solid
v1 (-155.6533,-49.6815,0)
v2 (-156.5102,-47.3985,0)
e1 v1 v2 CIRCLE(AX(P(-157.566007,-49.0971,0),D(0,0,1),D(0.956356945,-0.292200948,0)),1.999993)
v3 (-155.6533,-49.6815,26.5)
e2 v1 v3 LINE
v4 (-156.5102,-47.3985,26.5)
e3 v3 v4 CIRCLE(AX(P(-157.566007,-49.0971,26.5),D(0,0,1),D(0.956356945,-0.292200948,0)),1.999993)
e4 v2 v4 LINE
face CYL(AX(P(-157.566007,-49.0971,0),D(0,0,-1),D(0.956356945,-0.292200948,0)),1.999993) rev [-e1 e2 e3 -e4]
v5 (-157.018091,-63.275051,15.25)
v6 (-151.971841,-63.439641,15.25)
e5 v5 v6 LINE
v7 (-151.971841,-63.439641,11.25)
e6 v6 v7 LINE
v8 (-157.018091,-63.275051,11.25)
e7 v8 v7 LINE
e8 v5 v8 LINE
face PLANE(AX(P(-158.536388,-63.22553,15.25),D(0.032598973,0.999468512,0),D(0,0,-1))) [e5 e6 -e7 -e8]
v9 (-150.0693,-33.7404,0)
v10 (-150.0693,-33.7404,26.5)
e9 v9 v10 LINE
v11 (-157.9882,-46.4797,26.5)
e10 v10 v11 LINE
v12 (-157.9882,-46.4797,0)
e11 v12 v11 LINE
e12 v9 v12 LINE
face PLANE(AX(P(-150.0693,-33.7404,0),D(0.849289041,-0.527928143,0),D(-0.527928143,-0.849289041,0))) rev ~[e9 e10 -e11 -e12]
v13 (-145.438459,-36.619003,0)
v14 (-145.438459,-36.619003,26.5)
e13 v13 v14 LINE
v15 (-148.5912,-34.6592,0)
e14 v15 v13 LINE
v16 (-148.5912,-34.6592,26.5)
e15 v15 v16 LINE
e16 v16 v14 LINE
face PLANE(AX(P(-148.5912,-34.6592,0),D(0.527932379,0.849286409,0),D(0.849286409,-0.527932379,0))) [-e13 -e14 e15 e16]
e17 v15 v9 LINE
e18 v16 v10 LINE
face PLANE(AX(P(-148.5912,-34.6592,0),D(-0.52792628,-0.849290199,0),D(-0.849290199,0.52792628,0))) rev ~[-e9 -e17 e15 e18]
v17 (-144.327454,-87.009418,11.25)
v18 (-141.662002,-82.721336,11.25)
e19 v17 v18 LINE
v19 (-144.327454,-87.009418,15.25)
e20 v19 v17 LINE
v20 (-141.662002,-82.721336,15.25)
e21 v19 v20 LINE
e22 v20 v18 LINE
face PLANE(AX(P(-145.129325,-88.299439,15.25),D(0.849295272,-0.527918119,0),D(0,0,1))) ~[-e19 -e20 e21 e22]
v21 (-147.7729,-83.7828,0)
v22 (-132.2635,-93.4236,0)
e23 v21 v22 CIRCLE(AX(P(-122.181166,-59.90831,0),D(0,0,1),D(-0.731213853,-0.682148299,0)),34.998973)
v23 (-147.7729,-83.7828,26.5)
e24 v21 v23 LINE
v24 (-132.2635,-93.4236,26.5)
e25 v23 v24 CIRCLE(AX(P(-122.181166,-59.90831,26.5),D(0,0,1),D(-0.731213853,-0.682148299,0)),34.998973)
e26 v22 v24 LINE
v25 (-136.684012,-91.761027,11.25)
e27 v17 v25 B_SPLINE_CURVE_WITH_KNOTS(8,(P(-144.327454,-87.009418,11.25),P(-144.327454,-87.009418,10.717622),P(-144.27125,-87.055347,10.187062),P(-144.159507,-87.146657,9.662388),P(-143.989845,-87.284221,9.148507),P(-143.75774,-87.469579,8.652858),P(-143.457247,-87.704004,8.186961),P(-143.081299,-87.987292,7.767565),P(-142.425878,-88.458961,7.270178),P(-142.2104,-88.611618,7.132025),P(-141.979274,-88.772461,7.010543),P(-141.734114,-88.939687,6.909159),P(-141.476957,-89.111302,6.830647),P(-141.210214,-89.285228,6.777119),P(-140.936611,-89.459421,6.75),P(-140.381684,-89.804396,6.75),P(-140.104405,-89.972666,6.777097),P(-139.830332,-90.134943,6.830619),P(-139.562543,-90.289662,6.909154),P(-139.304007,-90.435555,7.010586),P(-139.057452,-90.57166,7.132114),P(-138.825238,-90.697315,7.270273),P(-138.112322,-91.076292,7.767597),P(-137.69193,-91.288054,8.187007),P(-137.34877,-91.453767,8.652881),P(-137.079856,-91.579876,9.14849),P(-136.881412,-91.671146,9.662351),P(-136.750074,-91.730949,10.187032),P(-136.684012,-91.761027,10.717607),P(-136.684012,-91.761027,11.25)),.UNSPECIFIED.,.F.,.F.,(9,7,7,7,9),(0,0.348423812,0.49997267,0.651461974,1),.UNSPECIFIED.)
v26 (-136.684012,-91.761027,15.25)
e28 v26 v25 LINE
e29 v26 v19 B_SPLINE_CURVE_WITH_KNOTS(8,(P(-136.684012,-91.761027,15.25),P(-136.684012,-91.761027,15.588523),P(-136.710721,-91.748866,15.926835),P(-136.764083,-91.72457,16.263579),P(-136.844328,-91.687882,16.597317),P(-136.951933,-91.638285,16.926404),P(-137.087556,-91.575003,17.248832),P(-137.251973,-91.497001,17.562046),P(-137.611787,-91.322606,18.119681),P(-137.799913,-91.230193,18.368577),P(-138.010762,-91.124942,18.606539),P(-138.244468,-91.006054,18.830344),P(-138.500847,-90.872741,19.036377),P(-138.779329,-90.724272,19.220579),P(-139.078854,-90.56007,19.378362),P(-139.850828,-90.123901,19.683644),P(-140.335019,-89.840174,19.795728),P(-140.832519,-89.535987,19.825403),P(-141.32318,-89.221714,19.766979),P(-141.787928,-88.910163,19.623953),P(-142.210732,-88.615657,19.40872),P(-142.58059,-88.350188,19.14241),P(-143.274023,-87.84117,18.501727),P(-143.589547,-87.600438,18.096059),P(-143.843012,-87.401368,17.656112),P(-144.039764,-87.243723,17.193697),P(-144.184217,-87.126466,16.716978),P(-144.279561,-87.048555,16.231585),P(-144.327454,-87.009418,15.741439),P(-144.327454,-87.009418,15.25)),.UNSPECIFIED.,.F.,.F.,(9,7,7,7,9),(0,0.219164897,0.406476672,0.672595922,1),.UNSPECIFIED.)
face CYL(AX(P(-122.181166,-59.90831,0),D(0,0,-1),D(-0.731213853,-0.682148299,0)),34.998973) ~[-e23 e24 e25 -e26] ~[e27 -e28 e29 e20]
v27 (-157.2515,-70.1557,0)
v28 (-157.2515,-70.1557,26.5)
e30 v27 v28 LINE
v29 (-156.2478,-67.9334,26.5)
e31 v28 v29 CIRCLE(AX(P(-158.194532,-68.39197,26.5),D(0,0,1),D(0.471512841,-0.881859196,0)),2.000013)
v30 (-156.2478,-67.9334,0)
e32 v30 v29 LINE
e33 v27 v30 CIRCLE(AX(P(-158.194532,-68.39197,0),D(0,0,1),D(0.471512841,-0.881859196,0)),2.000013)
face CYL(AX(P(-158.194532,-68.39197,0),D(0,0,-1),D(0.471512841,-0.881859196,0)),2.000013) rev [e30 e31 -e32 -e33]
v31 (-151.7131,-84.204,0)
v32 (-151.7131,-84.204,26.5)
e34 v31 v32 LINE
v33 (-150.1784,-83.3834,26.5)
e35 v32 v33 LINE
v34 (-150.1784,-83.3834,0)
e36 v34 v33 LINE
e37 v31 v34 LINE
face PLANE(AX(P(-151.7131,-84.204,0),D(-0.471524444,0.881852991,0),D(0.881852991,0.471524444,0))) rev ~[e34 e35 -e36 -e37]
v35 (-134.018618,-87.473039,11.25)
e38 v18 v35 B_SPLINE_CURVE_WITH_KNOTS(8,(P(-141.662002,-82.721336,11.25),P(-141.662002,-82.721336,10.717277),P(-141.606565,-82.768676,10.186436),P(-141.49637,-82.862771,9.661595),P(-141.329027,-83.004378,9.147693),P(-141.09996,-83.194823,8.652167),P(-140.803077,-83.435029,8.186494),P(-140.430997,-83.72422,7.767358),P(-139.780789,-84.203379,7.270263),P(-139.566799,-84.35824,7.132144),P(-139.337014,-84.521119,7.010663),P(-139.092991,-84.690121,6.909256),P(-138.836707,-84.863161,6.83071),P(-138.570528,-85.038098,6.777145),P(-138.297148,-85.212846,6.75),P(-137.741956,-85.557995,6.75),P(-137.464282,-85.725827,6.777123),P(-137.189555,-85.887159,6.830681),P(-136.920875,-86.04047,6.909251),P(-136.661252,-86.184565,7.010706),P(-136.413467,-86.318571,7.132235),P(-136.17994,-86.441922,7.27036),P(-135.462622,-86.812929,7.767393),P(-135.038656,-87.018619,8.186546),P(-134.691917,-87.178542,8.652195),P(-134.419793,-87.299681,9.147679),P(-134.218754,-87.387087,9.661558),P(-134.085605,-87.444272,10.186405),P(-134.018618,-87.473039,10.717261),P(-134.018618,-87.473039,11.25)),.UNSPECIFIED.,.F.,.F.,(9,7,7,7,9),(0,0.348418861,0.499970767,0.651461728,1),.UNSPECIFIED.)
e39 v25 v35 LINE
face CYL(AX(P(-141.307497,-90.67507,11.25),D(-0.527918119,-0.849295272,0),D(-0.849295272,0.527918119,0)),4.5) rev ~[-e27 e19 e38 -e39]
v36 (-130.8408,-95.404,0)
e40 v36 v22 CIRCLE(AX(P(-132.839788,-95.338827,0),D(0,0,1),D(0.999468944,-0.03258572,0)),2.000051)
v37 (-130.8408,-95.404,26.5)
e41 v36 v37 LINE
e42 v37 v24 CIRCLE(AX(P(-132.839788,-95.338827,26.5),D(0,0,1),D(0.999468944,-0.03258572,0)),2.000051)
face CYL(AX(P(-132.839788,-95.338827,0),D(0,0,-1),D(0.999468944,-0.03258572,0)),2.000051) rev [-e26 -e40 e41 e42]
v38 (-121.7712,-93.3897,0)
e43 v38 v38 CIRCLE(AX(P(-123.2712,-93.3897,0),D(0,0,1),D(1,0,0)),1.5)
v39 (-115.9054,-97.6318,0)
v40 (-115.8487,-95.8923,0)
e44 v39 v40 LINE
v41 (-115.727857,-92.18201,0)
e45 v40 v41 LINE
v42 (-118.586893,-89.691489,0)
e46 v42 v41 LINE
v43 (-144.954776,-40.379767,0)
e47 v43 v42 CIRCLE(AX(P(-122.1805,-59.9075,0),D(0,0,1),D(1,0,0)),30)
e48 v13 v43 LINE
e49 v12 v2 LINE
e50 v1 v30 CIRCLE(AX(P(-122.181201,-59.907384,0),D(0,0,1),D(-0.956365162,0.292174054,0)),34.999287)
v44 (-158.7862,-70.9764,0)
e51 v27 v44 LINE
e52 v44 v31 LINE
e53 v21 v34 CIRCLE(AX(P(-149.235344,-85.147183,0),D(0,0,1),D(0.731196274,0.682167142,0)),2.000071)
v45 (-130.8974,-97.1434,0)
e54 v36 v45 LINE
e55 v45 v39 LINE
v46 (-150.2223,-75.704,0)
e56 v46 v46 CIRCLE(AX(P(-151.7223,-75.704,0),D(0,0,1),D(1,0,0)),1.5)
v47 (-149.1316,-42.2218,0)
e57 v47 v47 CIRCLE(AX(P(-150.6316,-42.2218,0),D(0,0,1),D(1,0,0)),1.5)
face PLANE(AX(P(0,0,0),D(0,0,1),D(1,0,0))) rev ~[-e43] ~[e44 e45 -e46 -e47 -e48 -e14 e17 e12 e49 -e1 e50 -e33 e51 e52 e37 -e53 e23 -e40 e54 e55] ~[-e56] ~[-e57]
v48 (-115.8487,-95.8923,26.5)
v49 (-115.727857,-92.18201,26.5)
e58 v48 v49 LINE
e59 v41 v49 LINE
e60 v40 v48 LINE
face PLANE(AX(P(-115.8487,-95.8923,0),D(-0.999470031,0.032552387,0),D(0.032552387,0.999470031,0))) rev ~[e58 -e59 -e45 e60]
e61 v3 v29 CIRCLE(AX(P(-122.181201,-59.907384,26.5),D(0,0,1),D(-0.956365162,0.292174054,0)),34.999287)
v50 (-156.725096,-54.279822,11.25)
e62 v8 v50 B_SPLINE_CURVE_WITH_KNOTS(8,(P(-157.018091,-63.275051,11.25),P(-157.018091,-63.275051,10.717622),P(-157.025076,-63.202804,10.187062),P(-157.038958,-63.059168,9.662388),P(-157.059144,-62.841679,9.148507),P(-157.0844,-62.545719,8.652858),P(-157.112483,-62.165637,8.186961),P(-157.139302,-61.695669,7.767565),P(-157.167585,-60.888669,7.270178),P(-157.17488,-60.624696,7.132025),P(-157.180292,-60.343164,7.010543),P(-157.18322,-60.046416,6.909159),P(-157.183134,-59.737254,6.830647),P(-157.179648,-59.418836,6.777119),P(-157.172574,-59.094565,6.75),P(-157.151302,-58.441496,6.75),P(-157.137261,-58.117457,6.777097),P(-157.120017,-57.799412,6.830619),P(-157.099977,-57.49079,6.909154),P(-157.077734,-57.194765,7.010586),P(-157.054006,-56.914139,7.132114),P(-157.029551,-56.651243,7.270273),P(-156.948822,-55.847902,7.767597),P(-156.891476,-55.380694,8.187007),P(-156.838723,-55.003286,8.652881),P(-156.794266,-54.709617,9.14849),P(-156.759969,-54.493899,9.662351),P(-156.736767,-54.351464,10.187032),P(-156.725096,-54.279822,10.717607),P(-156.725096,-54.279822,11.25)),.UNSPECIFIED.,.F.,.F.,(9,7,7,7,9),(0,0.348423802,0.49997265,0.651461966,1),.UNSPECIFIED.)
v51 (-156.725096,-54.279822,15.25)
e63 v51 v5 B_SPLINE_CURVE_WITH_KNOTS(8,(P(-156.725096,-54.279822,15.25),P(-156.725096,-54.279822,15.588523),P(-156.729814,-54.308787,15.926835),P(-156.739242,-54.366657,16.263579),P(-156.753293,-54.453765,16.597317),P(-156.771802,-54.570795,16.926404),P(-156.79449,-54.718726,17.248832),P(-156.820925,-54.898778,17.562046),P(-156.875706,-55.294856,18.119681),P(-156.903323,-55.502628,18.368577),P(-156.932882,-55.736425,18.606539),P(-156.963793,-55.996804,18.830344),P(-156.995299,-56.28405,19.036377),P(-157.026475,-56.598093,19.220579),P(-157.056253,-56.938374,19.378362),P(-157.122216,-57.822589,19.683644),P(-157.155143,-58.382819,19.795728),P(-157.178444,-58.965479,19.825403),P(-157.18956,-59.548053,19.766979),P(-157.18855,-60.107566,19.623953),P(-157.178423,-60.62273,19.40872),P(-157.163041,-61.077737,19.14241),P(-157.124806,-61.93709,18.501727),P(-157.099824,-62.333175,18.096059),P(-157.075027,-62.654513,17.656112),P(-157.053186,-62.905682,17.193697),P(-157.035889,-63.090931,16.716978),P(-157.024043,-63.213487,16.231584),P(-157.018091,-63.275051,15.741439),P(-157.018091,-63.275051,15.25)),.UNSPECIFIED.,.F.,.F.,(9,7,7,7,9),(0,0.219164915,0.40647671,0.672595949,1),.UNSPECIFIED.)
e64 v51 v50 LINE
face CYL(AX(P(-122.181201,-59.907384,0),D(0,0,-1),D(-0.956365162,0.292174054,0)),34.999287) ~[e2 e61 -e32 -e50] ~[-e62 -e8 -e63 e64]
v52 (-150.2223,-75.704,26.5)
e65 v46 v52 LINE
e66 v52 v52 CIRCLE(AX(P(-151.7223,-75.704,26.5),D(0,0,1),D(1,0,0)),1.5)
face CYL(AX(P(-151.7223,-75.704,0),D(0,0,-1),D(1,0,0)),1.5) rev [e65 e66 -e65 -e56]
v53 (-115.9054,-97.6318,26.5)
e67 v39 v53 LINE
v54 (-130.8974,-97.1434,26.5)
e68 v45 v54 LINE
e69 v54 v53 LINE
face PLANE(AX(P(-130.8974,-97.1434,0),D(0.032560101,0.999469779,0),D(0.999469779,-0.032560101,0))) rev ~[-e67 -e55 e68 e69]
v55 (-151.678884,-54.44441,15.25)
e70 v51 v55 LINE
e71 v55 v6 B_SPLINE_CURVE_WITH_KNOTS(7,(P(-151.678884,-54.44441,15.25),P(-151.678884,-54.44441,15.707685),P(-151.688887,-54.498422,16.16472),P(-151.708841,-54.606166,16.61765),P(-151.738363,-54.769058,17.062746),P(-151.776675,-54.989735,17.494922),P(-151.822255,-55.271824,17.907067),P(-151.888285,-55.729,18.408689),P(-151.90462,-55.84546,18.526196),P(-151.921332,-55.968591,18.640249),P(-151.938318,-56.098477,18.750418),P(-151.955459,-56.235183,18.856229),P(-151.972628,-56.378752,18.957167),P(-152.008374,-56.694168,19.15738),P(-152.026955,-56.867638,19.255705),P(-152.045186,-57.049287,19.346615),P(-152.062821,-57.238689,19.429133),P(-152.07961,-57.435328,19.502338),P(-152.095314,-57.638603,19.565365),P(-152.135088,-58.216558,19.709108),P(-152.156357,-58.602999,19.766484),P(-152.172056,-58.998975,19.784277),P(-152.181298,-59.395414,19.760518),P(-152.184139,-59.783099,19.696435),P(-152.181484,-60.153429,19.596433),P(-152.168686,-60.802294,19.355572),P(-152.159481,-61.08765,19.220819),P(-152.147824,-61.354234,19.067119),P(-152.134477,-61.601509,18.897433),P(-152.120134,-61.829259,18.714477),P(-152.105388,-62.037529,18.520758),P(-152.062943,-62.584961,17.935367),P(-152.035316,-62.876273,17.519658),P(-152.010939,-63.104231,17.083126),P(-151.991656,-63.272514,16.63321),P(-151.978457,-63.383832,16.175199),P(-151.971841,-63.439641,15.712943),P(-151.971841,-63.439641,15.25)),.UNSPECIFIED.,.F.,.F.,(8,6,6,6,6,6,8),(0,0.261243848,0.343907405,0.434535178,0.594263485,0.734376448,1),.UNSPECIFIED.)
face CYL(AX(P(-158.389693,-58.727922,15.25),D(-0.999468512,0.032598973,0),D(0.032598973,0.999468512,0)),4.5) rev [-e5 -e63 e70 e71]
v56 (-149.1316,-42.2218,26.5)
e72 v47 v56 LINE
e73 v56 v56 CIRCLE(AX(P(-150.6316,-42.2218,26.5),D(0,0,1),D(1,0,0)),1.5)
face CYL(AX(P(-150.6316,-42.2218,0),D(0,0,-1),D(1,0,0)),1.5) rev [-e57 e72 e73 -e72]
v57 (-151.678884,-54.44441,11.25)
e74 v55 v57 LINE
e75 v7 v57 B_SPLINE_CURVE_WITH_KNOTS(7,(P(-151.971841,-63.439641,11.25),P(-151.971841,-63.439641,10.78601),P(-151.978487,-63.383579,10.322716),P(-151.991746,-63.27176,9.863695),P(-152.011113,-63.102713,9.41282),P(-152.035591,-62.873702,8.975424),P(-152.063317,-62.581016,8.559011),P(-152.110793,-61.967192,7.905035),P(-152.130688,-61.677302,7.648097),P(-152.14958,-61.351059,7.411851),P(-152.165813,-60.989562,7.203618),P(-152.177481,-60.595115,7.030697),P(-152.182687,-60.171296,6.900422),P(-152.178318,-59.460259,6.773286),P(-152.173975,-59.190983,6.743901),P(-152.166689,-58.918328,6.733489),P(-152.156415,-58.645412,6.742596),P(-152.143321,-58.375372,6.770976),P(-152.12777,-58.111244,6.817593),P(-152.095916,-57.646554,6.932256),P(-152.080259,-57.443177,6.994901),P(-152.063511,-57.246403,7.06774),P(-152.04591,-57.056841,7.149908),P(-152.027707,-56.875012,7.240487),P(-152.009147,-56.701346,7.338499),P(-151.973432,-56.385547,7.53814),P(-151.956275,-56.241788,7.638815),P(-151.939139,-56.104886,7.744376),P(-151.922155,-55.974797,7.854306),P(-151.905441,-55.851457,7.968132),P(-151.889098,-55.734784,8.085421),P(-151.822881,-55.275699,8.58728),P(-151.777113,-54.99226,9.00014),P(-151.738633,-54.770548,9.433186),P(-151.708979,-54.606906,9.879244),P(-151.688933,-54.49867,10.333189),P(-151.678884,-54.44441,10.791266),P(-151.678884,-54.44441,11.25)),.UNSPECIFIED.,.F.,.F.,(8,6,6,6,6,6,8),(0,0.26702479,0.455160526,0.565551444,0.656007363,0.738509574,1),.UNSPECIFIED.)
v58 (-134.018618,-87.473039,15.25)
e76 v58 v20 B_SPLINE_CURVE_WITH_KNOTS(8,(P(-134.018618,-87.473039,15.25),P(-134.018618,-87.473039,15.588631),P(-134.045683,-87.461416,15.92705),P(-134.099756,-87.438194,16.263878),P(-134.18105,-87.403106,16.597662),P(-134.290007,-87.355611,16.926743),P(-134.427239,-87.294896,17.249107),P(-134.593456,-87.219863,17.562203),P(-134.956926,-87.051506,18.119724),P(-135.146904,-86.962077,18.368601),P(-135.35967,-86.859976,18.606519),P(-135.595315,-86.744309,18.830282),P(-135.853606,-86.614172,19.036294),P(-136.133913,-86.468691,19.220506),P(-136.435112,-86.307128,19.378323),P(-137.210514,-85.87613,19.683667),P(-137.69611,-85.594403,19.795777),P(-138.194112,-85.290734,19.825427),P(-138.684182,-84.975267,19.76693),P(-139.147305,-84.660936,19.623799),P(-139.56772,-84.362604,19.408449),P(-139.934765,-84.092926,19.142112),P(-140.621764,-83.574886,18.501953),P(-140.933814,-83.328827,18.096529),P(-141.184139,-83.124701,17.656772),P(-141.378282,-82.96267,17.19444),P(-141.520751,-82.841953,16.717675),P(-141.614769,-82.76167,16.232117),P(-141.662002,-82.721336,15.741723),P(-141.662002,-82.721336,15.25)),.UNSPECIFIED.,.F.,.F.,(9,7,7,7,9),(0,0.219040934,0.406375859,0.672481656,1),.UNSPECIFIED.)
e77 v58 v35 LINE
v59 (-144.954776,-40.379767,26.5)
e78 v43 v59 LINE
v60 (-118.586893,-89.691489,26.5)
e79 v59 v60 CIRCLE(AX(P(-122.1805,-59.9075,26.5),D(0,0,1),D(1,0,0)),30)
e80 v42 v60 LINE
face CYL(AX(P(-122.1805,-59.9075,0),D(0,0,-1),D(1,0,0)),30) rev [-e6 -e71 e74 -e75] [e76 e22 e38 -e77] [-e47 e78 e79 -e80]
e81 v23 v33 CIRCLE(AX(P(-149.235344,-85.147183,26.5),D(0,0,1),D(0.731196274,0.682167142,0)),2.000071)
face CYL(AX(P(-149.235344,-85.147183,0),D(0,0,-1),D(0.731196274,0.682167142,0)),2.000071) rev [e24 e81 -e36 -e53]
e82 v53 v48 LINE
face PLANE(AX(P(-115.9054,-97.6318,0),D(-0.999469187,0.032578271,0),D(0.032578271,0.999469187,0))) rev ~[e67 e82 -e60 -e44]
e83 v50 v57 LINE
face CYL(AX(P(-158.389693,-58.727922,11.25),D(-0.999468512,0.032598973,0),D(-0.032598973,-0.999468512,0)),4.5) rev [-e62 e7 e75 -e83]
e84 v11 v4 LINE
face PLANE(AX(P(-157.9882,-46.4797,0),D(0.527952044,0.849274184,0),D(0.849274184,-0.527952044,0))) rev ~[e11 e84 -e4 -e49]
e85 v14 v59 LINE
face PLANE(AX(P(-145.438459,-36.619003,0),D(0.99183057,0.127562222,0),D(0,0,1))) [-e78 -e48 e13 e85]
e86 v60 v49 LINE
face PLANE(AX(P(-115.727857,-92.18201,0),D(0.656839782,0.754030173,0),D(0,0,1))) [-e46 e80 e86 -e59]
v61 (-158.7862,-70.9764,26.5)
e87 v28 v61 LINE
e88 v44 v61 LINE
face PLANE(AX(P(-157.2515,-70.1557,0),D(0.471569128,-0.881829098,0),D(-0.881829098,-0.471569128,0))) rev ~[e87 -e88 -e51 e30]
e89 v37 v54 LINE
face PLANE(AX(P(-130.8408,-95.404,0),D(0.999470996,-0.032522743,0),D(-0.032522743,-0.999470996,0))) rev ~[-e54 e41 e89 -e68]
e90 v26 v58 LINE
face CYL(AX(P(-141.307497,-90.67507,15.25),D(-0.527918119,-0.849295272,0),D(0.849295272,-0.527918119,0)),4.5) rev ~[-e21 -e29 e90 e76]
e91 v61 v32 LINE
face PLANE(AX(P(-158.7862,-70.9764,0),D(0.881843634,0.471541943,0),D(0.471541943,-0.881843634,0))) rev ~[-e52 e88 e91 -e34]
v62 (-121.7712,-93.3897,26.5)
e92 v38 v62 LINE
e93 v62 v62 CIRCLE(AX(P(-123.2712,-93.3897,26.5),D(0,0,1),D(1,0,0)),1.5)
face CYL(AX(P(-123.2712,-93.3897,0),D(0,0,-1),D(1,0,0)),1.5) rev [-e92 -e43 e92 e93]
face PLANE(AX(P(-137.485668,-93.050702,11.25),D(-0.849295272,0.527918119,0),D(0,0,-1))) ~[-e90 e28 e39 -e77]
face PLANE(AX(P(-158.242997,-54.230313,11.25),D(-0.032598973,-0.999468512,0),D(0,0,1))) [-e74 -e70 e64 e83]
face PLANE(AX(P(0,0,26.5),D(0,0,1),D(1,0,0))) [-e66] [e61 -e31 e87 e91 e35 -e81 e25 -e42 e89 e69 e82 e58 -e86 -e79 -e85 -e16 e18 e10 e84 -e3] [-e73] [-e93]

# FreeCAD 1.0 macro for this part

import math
import FreeCAD as App
import Part
import Sketcher
from FreeCAD import Vector
Q = App.Units.Quantity


def edges_at(feature, points):
    """Names of the edges that pass closest to the given points."""
    edges = feature.Shape.Edges
    near = lambda p: min(range(len(edges)), key=lambda i: edges[i].distToShape(Part.Vertex(*p))[0])
    return sorted({f"Edge{near(p) + 1}" for p in points})

doc = App.newDocument("Part")
params = doc.addObject("Spreadsheet::Sheet", "Params")
for row, (alias, value) in enumerate([
    ("sketch1_radius", "30 mm"),
    ("sketch1_diameter", "3 mm"),
    ("sketch1_diameter2", "3 mm"),
    ("sketch1_diameter3", "3 mm"),
    ("sketch1_radius2", "2 mm"),
    ("pad1_length", "26.5 mm"),
    ("chamfer_size", "3 mm"),
    ("sketch2_radius", "4.5 mm"),
    ("sketch2_width", "4 mm"),
    ("pocket1_length", "10 mm"),
], start=1):
    params.set(f"A{row}", alias)
    params.set(f"B{row}", "=" + value)
    params.setAlias(f"B{row}", alias)

body = doc.addObject("PartDesign::Body", "Body")

# Sketch on XY plane
sketch1 = doc.addObject("Sketcher::SketchObject", "Sketch")
body.addObject(sketch1)
sketch1.AttachmentSupport = (doc.XY_Plane, [""])
sketch1.MapMode = "FlatFace"
sketch1.addGeometry([
    Part.LineSegment(Vector(-115.9054, -97.6318, 0), Vector(-115.8487, -95.8923, 0)),  # 0
    Part.LineSegment(Vector(-115.8487, -95.8923, 0), Vector(-115.6302, -89.1836, 0)),  # 1
    Part.ArcOfCircle(Part.Circle(Vector(-122.1805, -59.9075, 0), Vector(0, 0, 1), 30), math.radians(133.656697), math.radians(282.611773)),  # 2
    Part.LineSegment(Vector(-142.8906, -38.2028, 0), Vector(-148.5912, -34.6592, 0)),  # 3
    Part.LineSegment(Vector(-148.5912, -34.6592, 0), Vector(-150.0693, -33.7404, 0)),  # 4
    Part.LineSegment(Vector(-150.0693, -33.7404, 0), Vector(-157.9882, -46.4797, 0)),  # 5
    Part.LineSegment(Vector(-157.9882, -46.4797, 0), Vector(-156.5102, -47.3985, 0)),  # 6
    Part.ArcOfCircle(Part.Circle(Vector(-157.566, -49.0971, 0), Vector(0, 0, 1), 1.999986), math.radians(-16.989834), math.radians(58.136127)),  # 7
    Part.ArcOfCircle(Part.Circle(Vector(-122.1805, -59.9075, 0), Vector(0, 0, 1), 34.999991), math.radians(163.011995), math.radians(193.256558)),  # 8
    Part.ArcOfCircle(Part.Circle(Vector(-158.1945, -68.392, 0), Vector(0, 0, 1), 1.999972), math.radians(-61.867857), math.radians(13.25594)),  # 9
    Part.LineSegment(Vector(-157.2515, -70.1557, 0), Vector(-158.7862, -70.9764, 0)),  # 10
    Part.LineSegment(Vector(-158.7862, -70.9764, 0), Vector(-151.7131, -84.204, 0)),  # 11
    Part.LineSegment(Vector(-151.7131, -84.204, 0), Vector(-150.1784, -83.3834, 0)),  # 12
    Part.ArcOfCircle(Part.Circle(Vector(-149.2353, -85.1471, 0), Vector(0, 0, 1), 1.999982), math.radians(43.01236), math.radians(118.134669)),  # 13
    Part.ArcOfCircle(Part.Circle(Vector(-122.181166, -59.90831, 0), Vector(0, 0, 1), 34.998973), math.radians(-136.988252), math.radians(-106.742752)),  # 14
    Part.ArcOfCircle(Part.Circle(Vector(-132.8397, -95.3388, 0), Vector(0, 0, 1), 1.999963), math.radians(-1.868208), math.radians(73.255755)),  # 15
    Part.LineSegment(Vector(-130.8408, -95.404, 0), Vector(-130.8974, -97.1434, 0)),  # 16
    Part.LineSegment(Vector(-130.8974, -97.1434, 0), Vector(-115.9054, -97.6318, 0)),  # 17
    Part.Circle(Vector(-123.2712, -93.3897, 0), Vector(0, 0, 1), 1.5),  # 18
    Part.Circle(Vector(-151.7223, -75.704, 0), Vector(0, 0, 1), 1.5),  # 19
    Part.Circle(Vector(-150.6316, -42.2218, 0), Vector(0, 0, 1), 1.5),  # 20
], False)
sketch1.addConstraint([
    Sketcher.Constraint("Coincident", 0, 2, 1, 1),
    Sketcher.Constraint("Coincident", 1, 2, 2, 2),
    Sketcher.Constraint("Coincident", 2, 1, 3, 1),
    Sketcher.Constraint("Coincident", 3, 2, 4, 1),
    Sketcher.Constraint("Coincident", 4, 2, 5, 1),
    Sketcher.Constraint("Coincident", 5, 2, 6, 1),
    Sketcher.Constraint("Coincident", 6, 2, 7, 2),
    Sketcher.Constraint("Coincident", 7, 1, 8, 1),
    Sketcher.Constraint("Coincident", 8, 2, 9, 2),
    Sketcher.Constraint("Coincident", 9, 1, 10, 1),
    Sketcher.Constraint("Coincident", 10, 2, 11, 1),
    Sketcher.Constraint("Coincident", 11, 2, 12, 1),
    Sketcher.Constraint("Coincident", 12, 2, 13, 2),
    Sketcher.Constraint("Coincident", 13, 1, 14, 1),
    Sketcher.Constraint("Coincident", 14, 2, 15, 2),
    Sketcher.Constraint("Coincident", 15, 1, 16, 1),
    Sketcher.Constraint("Coincident", 16, 2, 17, 1),
    Sketcher.Constraint("Coincident", 17, 2, 0, 1),
    Sketcher.Constraint("Coincident", 8, 3, 2, 3),
    Sketcher.Constraint("Radius", 2, Q("30 mm")),
    Sketcher.Constraint("Diameter", 18, Q("3 mm")),
    Sketcher.Constraint("Diameter", 19, Q("3 mm")),
    Sketcher.Constraint("Diameter", 20, Q("3 mm")),
    Sketcher.Constraint("Radius", 7, Q("2 mm")),
    Sketcher.Constraint("Radius", 8, Q("35 mm")),
    Sketcher.Constraint("Radius", 9, Q("2 mm")),
    Sketcher.Constraint("Radius", 13, Q("2 mm")),
    Sketcher.Constraint("Radius", 15, Q("2 mm")),
    Sketcher.Constraint("Distance", 5, Q("15 mm")),
    Sketcher.Constraint("Distance", 11, Q("15 mm")),
    Sketcher.Constraint("Distance", 17, Q("15 mm")),
    Sketcher.Constraint("Radius", 14, Q("34.999 mm")),
    Sketcher.Constraint("DistanceY", 11, 2, 19, 3, Q("8.5 mm")),
    Sketcher.Constraint("DistanceY", 13, 3, 7, 3, Q("36.05 mm")),
    Sketcher.Constraint("DistanceX", 18, 3, 14, 3, Q("1.09 mm")),
    Sketcher.Constraint("DistanceX", 2, 1, 2, 3, Q("20.71 mm")),
    Sketcher.Constraint("DistanceY", 14, 2, 1, 2, Q("4.24 mm")),
    Sketcher.Constraint("DistanceX", 7, 3, -1, 1, Q("157.566 mm")),
    Sketcher.Constraint("DistanceY", 7, 3, -1, 1, Q("49.097 mm")),
    Sketcher.Constraint("DistanceY", 9, 3, -1, 1, Q("68.392 mm")),
    Sketcher.Constraint("DistanceY", 19, 3, -1, 1, Q("75.704 mm")),
    Sketcher.Constraint("DistanceX", 11, 2, -1, 1, Q("151.713 mm")),
    Sketcher.Constraint("DistanceX", 13, 1, -1, 1, Q("147.773 mm")),
    Sketcher.Constraint("DistanceY", 15, 1, -1, 1, Q("95.404 mm")),
    Sketcher.Constraint("DistanceX", 9, 3, 2, 3, Q("36.014 mm")),
    Sketcher.Constraint("DistanceY", 15, 3, 18, 3, Q("1.949 mm")),
    Sketcher.Constraint("DistanceX", 13, 3, 18, 3, Q("25.964 mm")),
    Sketcher.Constraint("DistanceX", 19, 3, 13, 3, Q("2.487 mm")),
    Sketcher.Constraint("DistanceX", 9, 3, 20, 3, Q("7.563 mm")),
    Sketcher.Constraint("DistanceX", 15, 3, 0, 2, Q("16.991 mm")),
    Sketcher.Constraint("DistanceY", 0, 2, 14, 3, Q("35.984 mm")),
    Sketcher.Constraint("DistanceX", 18, 3, 1, 2, Q("7.641 mm")),
    Sketcher.Constraint("DistanceY", 18, 3, 1, 2, Q("4.206 mm")),
    Sketcher.Constraint("DistanceY", 1, 2, 2, 3, Q("29.276 mm")),
    Sketcher.Constraint("DistanceY", 20, 3, 2, 1, Q("4.019 mm")),
    Sketcher.Constraint("DistanceY", 7, 3, 3, 2, Q("14.438 mm")),
    Sketcher.Constraint("DistanceX", 4, 2, 3, 2, Q("1.478 mm")),
    Sketcher.Constraint("DistanceY", 5, 2, 20, 3, Q("4.258 mm")),
    Sketcher.Constraint("DistanceX", 5, 2, 4, 2, Q("7.919 mm")),
    Sketcher.Constraint("DistanceX", 5, 2, 6, 2, Q("1.478 mm")),
    Sketcher.Constraint("DistanceY", 6, 2, 4, 2, Q("13.658 mm")),
    Sketcher.Constraint("DistanceX", 6, 2, 7, 1, Q("0.857 mm")),
    Sketcher.Constraint("DistanceY", 8, 2, 7, 1, Q("18.252 mm")),
    Sketcher.Constraint("DistanceX", 9, 3, 9, 1, Q("0.943 mm")),
    Sketcher.Constraint("DistanceY", 10, 2, 8, 2, Q("3.043 mm")),
    Sketcher.Constraint("DistanceX", 12, 2, 13, 3, Q("0.943 mm")),
    Sketcher.Constraint("DistanceX", 14, 2, 16, 2, Q("1.366 mm")),
    Sketcher.Constraint("DistanceY", 16, 2, 0, 2, Q("1.251 mm")),
    Sketcher.Constraint("DistanceY", 17, 2, 18, 3, Q("4.242 mm")),
])
sketch1.setExpression("Constraints[19]", "Params.sketch1_radius")
sketch1.setExpression("Constraints[20]", "Params.sketch1_diameter")
sketch1.setExpression("Constraints[21]", "Params.sketch1_diameter2")
sketch1.setExpression("Constraints[22]", "Params.sketch1_diameter3")
sketch1.setExpression("Constraints[23]", "Params.sketch1_radius2")
pad1 = doc.addObject("PartDesign::Pad", "Pad")
body.addObject(pad1)
pad1.Profile = sketch1
pad1.setExpression("Length", "Params.pad1_length")
doc.recompute()

chamfer = doc.addObject("PartDesign::Chamfer", "Chamfer")
body.addObject(chamfer)
chamfer.Base = (pad1, edges_at(pad1, [(-142.891, -38.203, 13.25), (-115.63, -89.184, 13.25)]))
chamfer.setExpression("Size", "Params.chamfer_size")

# Sketch on an angled plane
sketch2 = doc.addObject("Sketcher::SketchObject", "Sketch001")
body.addObject(sketch2)
sketch2.Placement = App.Placement(Vector(-157.9882, -46.4797, 0), App.Rotation(Vector(0, 0, 1), Vector(-0.032598973, -0.999468512, 0), Vector(0.999468512, -0.032598973, 0), "ZXY"))
sketch2.addGeometry([
    Part.ArcOfCircle(Part.Circle(Vector(15.2, 12.3, 0), Vector(0, 0, 1), 4.5), math.radians(-90), math.radians(90)),
    Part.LineSegment(Vector(15.2, 16.8, 0), Vector(11.2, 16.8, 0)),
    Part.ArcOfCircle(Part.Circle(Vector(11.2, 12.3, 0), Vector(0, 0, 1), 4.5), math.radians(90), math.radians(270)),
    Part.LineSegment(Vector(11.2, 7.8, 0), Vector(15.2, 7.8, 0)),
], False)
sketch2.addConstraint([
    Sketcher.Constraint("Tangent", 0, 2, 1, 1),
    Sketcher.Constraint("Tangent", 1, 2, 2, 1),
    Sketcher.Constraint("Tangent", 2, 2, 3, 1),
    Sketcher.Constraint("Tangent", 3, 2, 0, 1),
    Sketcher.Constraint("Horizontal", 1),
    Sketcher.Constraint("Horizontal", 3),
    Sketcher.Constraint("Radius", 0, Q("4.5 mm")),
    Sketcher.Constraint("DistanceX", 1, 2, 1, 1, Q("4 mm")),
    Sketcher.Constraint("DistanceX", -1, 1, 0, 3, Q("15.25 mm")),
    Sketcher.Constraint("DistanceY", -1, 1, 0, 3, Q("12.2548 mm")),
])
sketch2.setExpression("Constraints[6]", "Params.sketch2_radius")
sketch2.setExpression("Constraints[7]", "Params.sketch2_width")
pocket1 = doc.addObject("PartDesign::Pocket", "Pocket")
body.addObject(pocket1)
pocket1.Profile = sketch2
pocket1.setExpression("Length", "Params.pocket1_length")
pocket1.Reversed = True
doc.recompute()

datumplane = doc.addObject("PartDesign::Plane", "DatumPlane")
body.addObject(datumplane)
datumplane.Placement = App.Placement(Vector(-2.254897, 4.217112, 0), App.Rotation(Vector(0.881851374, 0.47152747, 0), Vector(0, 0, -1), Vector(-0.47152747, 0.881851374, 0), "ZXY"))
mirrored = doc.addObject("PartDesign::Mirrored", "Mirrored")
body.addObject(mirrored)
mirrored.Originals = [pocket1]
mirrored.MirrorPlane = (datumplane, [""])
body.Tip = mirrored

doc.recompute()
